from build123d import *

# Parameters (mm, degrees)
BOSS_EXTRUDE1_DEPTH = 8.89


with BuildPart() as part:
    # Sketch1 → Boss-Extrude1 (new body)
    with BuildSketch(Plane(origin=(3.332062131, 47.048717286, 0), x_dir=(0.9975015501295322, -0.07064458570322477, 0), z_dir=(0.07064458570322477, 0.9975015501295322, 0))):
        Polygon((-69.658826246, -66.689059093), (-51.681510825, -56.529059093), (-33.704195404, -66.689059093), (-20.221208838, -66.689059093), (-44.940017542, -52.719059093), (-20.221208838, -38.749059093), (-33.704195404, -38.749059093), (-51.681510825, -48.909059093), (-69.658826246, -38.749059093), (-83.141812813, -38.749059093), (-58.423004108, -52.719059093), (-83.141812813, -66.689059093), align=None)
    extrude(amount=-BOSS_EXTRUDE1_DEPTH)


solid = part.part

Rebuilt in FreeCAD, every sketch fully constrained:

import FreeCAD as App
import Part
import Sketcher
from FreeCAD import Vector
Q = App.Units.Quantity

doc = App.newDocument("Part")
body = doc.addObject("PartDesign::Body", "Body")

sketch1 = doc.addObject("Sketcher::SketchObject", "Sketch")
body.addObject(sketch1)
sketch1.Placement = App.Placement(Vector(3.332062, 47.048717, 0), App.Rotation(Vector(0.99750155, -0.070644586, 0), Vector(0, 0, -1), Vector(0.070644586, 0.99750155, 0), "ZXY"))
sketch1.addGeometry([
    Part.LineSegment(Vector(-70, -67, 0), Vector(-52, -57, 0)),
    Part.LineSegment(Vector(-52, -57, 0), Vector(-34, -67, 0)),
    Part.LineSegment(Vector(-34, -67, 0), Vector(-20, -67, 0)),
    Part.LineSegment(Vector(-20, -67, 0), Vector(-45, -53, 0)),
    Part.LineSegment(Vector(-45, -53, 0), Vector(-20, -39, 0)),
    Part.LineSegment(Vector(-20, -39, 0), Vector(-34, -39, 0)),
    Part.LineSegment(Vector(-34, -39, 0), Vector(-52, -49, 0)),
    Part.LineSegment(Vector(-52, -49, 0), Vector(-70, -39, 0)),
    Part.LineSegment(Vector(-70, -39, 0), Vector(-83, -39, 0)),
    Part.LineSegment(Vector(-83, -39, 0), Vector(-58, -53, 0)),
    Part.LineSegment(Vector(-58, -53, 0), Vector(-83, -67, 0)),
    Part.LineSegment(Vector(-83, -67, 0), Vector(-70, -67, 0)),
], False)
sketch1.addConstraint([
    Sketcher.Constraint("Coincident", 0, 2, 1, 1),
    Sketcher.Constraint("Coincident", 1, 2, 2, 1),
    Sketcher.Constraint("Coincident", 2, 2, 3, 1),
    Sketcher.Constraint("Coincident", 3, 2, 4, 1),
    Sketcher.Constraint("Coincident", 4, 2, 5, 1),
    Sketcher.Constraint("Coincident", 5, 2, 6, 1),
    Sketcher.Constraint("Coincident", 6, 2, 7, 1),
    Sketcher.Constraint("Coincident", 7, 2, 8, 1),
    Sketcher.Constraint("Coincident", 8, 2, 9, 1),
    Sketcher.Constraint("Coincident", 9, 2, 10, 1),
    Sketcher.Constraint("Coincident", 10, 2, 11, 1),
    Sketcher.Constraint("Coincident", 11, 2, 0, 1),
    Sketcher.Constraint("Horizontal", 2),
    Sketcher.Constraint("Horizontal", 5),
    Sketcher.Constraint("Horizontal", 8),
    Sketcher.Constraint("Horizontal", 11),
    Sketcher.Constraint("Parallel", 1, 3),
    Sketcher.Constraint("Parallel", 0, 4),
    Sketcher.Constraint("Parallel", 4, 6),
    Sketcher.Constraint("Parallel", 3, 7),
    Sketcher.Constraint("Parallel", 7, 9),
    Sketcher.Constraint("Parallel", 6, 10),
    Sketcher.Constraint("Horizontal", 5, 2, 7, 2),
    Sketcher.Constraint("Horizontal", 3, 2, 9, 2),
    Sketcher.Constraint("Horizontal", 2, 2, 10, 2),
    Sketcher.Constraint("Vertical", 2, 2, 4, 2),
    Sketcher.Constraint("Vertical", 1, 2, 5, 2),
    Sketcher.Constraint("Vertical", 0, 2, 6, 2),
    Sketcher.Constraint("Vertical", 8, 2, 10, 2),
    Sketcher.Constraint("Equal", 5, 8),
    Sketcher.Constraint("DistanceY", 1, 2, 0, 2, Q("0.4 in")),
    Sketcher.Constraint("DistanceY", 2, 2, 4, 2, Q("1.1 in")),
    Sketcher.Constraint("DistanceX", 0, 2, 2, 2, 31.460302),
    Sketcher.Constraint("DistanceX", 2, 1, 2, 2, 13.482987),
    Sketcher.Constraint("DistanceX", 0, 2, -1, 1, 51.681511),
    Sketcher.Constraint("DistanceY", 0, 2, -1, 1, 56.529059),
])
pad1 = doc.addObject("PartDesign::Pad", "Pad")
body.addObject(pad1)
pad1.Profile = sketch1
pad1.Length = Q("0.35 in")
pad1.Reversed = True

doc.recompute()
